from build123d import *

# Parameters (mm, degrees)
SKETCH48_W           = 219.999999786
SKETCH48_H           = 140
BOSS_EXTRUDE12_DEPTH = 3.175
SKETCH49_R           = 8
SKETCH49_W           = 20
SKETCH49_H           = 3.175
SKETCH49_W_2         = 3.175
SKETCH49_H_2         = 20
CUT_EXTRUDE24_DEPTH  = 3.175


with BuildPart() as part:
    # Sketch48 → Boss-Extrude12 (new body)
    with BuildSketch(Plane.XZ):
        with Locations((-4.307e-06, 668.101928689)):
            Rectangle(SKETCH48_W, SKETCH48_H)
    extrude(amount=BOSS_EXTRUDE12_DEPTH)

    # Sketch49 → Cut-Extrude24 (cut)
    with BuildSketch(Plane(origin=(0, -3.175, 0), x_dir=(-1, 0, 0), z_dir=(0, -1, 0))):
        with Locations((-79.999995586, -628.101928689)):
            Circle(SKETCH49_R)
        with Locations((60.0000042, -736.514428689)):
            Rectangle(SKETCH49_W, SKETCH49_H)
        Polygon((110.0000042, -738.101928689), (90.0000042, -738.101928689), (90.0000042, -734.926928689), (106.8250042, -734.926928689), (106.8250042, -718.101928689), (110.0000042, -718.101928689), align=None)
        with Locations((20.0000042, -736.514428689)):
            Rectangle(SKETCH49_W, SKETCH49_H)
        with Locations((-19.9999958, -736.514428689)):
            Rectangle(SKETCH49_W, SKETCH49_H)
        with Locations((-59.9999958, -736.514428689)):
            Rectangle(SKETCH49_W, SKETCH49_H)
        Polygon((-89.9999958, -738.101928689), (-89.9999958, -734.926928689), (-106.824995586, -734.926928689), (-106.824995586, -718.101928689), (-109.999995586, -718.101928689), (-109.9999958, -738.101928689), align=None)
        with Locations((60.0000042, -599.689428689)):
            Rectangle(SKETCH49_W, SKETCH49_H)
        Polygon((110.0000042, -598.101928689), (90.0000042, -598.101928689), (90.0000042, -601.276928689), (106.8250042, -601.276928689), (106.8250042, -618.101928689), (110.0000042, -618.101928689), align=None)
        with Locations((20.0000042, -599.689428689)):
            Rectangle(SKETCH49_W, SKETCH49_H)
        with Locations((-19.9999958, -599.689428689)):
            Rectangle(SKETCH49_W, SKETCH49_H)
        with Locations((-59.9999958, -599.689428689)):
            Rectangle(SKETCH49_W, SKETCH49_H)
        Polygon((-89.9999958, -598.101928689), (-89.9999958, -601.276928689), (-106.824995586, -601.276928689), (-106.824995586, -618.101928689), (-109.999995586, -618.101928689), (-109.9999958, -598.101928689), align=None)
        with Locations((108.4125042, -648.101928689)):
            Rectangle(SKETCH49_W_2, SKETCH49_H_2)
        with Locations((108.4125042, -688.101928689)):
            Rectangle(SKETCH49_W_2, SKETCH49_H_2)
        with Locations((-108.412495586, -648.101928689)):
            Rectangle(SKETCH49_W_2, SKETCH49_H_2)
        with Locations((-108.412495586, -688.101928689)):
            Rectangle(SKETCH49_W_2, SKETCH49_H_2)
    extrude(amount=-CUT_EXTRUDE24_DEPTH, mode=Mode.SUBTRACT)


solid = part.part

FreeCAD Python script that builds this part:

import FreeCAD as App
import Part
import Sketcher
from FreeCAD import Vector


def add_polygon(sketch, points):
    """Adds a closed chain of lines whose ends are joined by coincident constraints."""
    first, n = sketch.GeometryCount, len(points)
    for a, b in zip(points, points[1:] + points[:1]):
        sketch.addGeometry(Part.LineSegment(App.Vector(*a, 0), App.Vector(*b, 0)), False)
    for i in range(n):
        sketch.addConstraint(Sketcher.Constraint("Coincident", first + i, 2, first + (i + 1) % n, 1))

doc = App.newDocument("Part")
body = doc.addObject("PartDesign::Body", "Body")

sketch1 = body.newObject("Sketcher::SketchObject", "Sketch")
sketch1.AttachmentSupport = (doc.getObject("XZ_Plane"), [""])
sketch1.MapMode = "FlatFace"
add_polygon(sketch1, [(-110, 738), (-110, 598), (110, 598), (110, 738)])
sketch1.addConstraint([
    Sketcher.Constraint("Vertical", 0),
    Sketcher.Constraint("Horizontal", 1),
    Sketcher.Constraint("Vertical", 2),
    Sketcher.Constraint("Horizontal", 3),
    Sketcher.Constraint("DistanceX", 1, 1, 1, 2, 220.0),
    Sketcher.Constraint("DistanceY", 0, 2, 0, 1, 140.0),
    Sketcher.Constraint("DistanceY", -1, 1, 0, 2, 598.101929),
    Sketcher.Constraint("DistanceX", 0, 2, -1, 1, 110.000004),
])
pad1 = body.newObject("PartDesign::Pad", "Pad")
pad1.Profile = sketch1
pad1.Length = 3.175

sketch2 = body.newObject("Sketcher::SketchObject", "Sketch001")
sketch2.AttachmentSupport = (doc.getObject("XZ_Plane"), [""])
sketch2.MapMode = "FlatFace"
sketch2.AttachmentOffset = App.Placement(Vector(0, 0, 3.175), App.Rotation())
sketch2.addGeometry(Part.Circle(Vector(80, 628.1, 0), Vector(0, 0, 1), 8), False)
add_polygon(sketch2, [(-50, 734.9), (-50, 738.1), (-70, 738.1), (-70, 734.9)])
add_polygon(sketch2, [(-90, 738.1), (-110, 738.1), (-110, 718.1), (-106.8, 718.1), (-106.8, 734.9), (-90, 734.9)])
add_polygon(sketch2, [(-10, 734.9), (-10, 738.1), (-30, 738.1), (-30, 734.9)])
add_polygon(sketch2, [(30, 734.9), (30, 738.1), (10, 738.1), (10, 734.9)])
add_polygon(sketch2, [(70, 734.9), (70, 738.1), (50, 738.1), (50, 734.9)])
add_polygon(sketch2, [(90, 738.1), (90, 734.9), (106.8, 734.9), (106.8, 718.1), (110, 718.1), (110, 738.1)])
add_polygon(sketch2, [(-50, 598.1), (-50, 601.3), (-70, 601.3), (-70, 598.1)])
add_polygon(sketch2, [(-110, 598.1), (-90, 598.1), (-90, 601.3), (-106.8, 601.3), (-106.8, 618.1), (-110, 618.1)])
add_polygon(sketch2, [(-10, 598.1), (-10, 601.3), (-30, 601.3), (-30, 598.1)])
add_polygon(sketch2, [(30, 598.1), (30, 601.3), (10, 601.3), (10, 598.1)])
add_polygon(sketch2, [(70, 598.1), (70, 601.3), (50, 601.3), (50, 598.1)])
add_polygon(sketch2, [(90, 601.3), (90, 598.1), (110, 598.1), (110, 618.1), (106.8, 618.1), (106.8, 601.3)])
add_polygon(sketch2, [(-106.8, 638.1), (-106.8, 658.1), (-110, 658.1), (-110, 638.1)])
add_polygon(sketch2, [(-106.8, 678.1), (-106.8, 698.1), (-110, 698.1), (-110, 678.1)])
add_polygon(sketch2, [(110, 638.1), (110, 658.1), (106.8, 658.1), (106.8, 638.1)])
add_polygon(sketch2, [(110, 678.1), (110, 698.1), (106.8, 698.1), (106.8, 678.1)])
sketch2.addConstraint([
    Sketcher.Constraint("Vertical", 1),
    Sketcher.Constraint("Horizontal", 2),
    Sketcher.Constraint("Vertical", 3),
    Sketcher.Constraint("Horizontal", 4),
    Sketcher.Constraint("Horizontal", 5),
    Sketcher.Constraint("Vertical", 6),
    Sketcher.Constraint("Horizontal", 7),
    Sketcher.Constraint("Vertical", 8),
    Sketcher.Constraint("Horizontal", 9),
    Sketcher.Constraint("Vertical", 10),
    Sketcher.Constraint("Vertical", 11),
    Sketcher.Constraint("Horizontal", 12),
    Sketcher.Constraint("Vertical", 13),
    Sketcher.Constraint("Horizontal", 14),
    Sketcher.Constraint("Vertical", 15),
    Sketcher.Constraint("Horizontal", 16),
    Sketcher.Constraint("Vertical", 17),
    Sketcher.Constraint("Horizontal", 18),
    Sketcher.Constraint("Vertical", 19),
    Sketcher.Constraint("Horizontal", 20),
    Sketcher.Constraint("Vertical", 21),
    Sketcher.Constraint("Horizontal", 22),
    Sketcher.Constraint("Vertical", 23),
    Sketcher.Constraint("Horizontal", 24),
    Sketcher.Constraint("Vertical", 25),
    Sketcher.Constraint("Horizontal", 26),
    Sketcher.Constraint("Vertical", 27),
    Sketcher.Constraint("Horizontal", 28),
    Sketcher.Constraint("Vertical", 29),
    Sketcher.Constraint("Horizontal", 30),
    Sketcher.Constraint("Vertical", 31),
    Sketcher.Constraint("Horizontal", 32),
    Sketcher.Constraint("Horizontal", 33),
    Sketcher.Constraint("Vertical", 34),
    Sketcher.Constraint("Horizontal", 35),
    Sketcher.Constraint("Vertical", 36),
    Sketcher.Constraint("Horizontal", 37),
    Sketcher.Constraint("Vertical", 38),
    Sketcher.Constraint("Vertical", 39),
    Sketcher.Constraint("Horizontal", 40),
    Sketcher.Constraint("Vertical", 41),
    Sketcher.Constraint("Horizontal", 42),
    Sketcher.Constraint("Vertical", 43),
    Sketcher.Constraint("Horizontal", 44),
    Sketcher.Constraint("Vertical", 45),
    Sketcher.Constraint("Horizontal", 46),
    Sketcher.Constraint("Vertical", 47),
    Sketcher.Constraint("Horizontal", 48),
    Sketcher.Constraint("Vertical", 49),
    Sketcher.Constraint("Horizontal", 50),
    Sketcher.Constraint("Vertical", 51),
    Sketcher.Constraint("Horizontal", 52),
    Sketcher.Constraint("Vertical", 53),
    Sketcher.Constraint("Horizontal", 54),
    Sketcher.Constraint("Vertical", 55),
    Sketcher.Constraint("Horizontal", 56),
    Sketcher.Constraint("Vertical", 57),
    Sketcher.Constraint("Horizontal", 58),
    Sketcher.Constraint("Vertical", 59),
    Sketcher.Constraint("Horizontal", 60),
    Sketcher.Constraint("Vertical", 61),
    Sketcher.Constraint("Horizontal", 62),
    Sketcher.Constraint("Vertical", 63),
    Sketcher.Constraint("Horizontal", 64),
    Sketcher.Constraint("Vertical", 65),
    Sketcher.Constraint("Horizontal", 66),
    Sketcher.Constraint("Vertical", 67),
    Sketcher.Constraint("Horizontal", 68),
    Sketcher.Constraint("Vertical", 69),
    Sketcher.Constraint("Horizontal", 70),
    Sketcher.Constraint("Vertical", 71),
    Sketcher.Constraint("Horizontal", 72),
    Sketcher.Constraint("Symmetric", 12, 2, 15, 2, -2),
    Sketcher.Constraint("Symmetric", 14, 2, 17, 2, -2),
    Sketcher.Constraint("Symmetric", 2, 2, 19, 2, -2),
    Sketcher.Constraint("Symmetric", 4, 2, 21, 2, -2),
    Sketcher.Constraint("Symmetric", 9, 2, 23, 2, -2),
    Sketcher.Constraint("Symmetric", 7, 2, 25, 2, -2),
    Sketcher.Constraint("Symmetric", 5, 2, 27, 2, -2),
    Sketcher.Constraint("Symmetric", 40, 2, 43, 2, -2),
    Sketcher.Constraint("Symmetric", 42, 2, 45, 2, -2),
    Sketcher.Constraint("Symmetric", 30, 2, 47, 2, -2),
    Sketcher.Constraint("Symmetric", 32, 2, 49, 2, -2),
    Sketcher.Constraint("Symmetric", 33, 2, 51, 2, -2),
    Sketcher.Constraint("Symmetric", 37, 2, 53, 2, -2),
    Sketcher.Constraint("Symmetric", 35, 2, 55, 2, -2),
    Sketcher.Constraint("Symmetric", 58, 2, 65, 2, -2),
    Sketcher.Constraint("Symmetric", 60, 2, 67, 2, -2),
    Sketcher.Constraint("Symmetric", 62, 2, 69, 2, -2),
    Sketcher.Constraint("Symmetric", 64, 2, 71, 2, -2),
    Sketcher.Constraint("Horizontal", 2, 2, 5, 2),
    Sketcher.Constraint("Horizontal", 4, 2, 8, 2),
    Sketcher.Constraint("Horizontal", 10, 2, 11, 2),
    Sketcher.Constraint("Horizontal", 9, 2, 13, 2),
    Sketcher.Constraint("Horizontal", 32, 2, 33, 2),
    Sketcher.Constraint("Horizontal", 30, 2, 34, 2),
    Sketcher.Constraint("Horizontal", 35, 2, 39, 2),
    Sketcher.Constraint("Horizontal", 38, 2, 41, 2),
    Sketcher.Constraint("Vertical", 4, 2, 29, 2),
    Sketcher.Constraint("Vertical", 3, 2, 30, 2),
    Sketcher.Constraint("Vertical", 10, 2, 33, 2),
    Sketcher.Constraint("Vertical", 8, 2, 35, 2),
    Sketcher.Constraint("Vertical", 6, 2, 37, 2),
    Sketcher.Constraint("Vertical", 14, 2, 39, 2),
    Sketcher.Constraint("Vertical", 13, 2, 40, 2),
    Sketcher.Constraint("Vertical", 36, 2, 57, 2),
    Sketcher.Constraint("Vertical", 38, 2, 58, 2),
    Sketcher.Constraint("Vertical", 60, 2, 61, 2),
    Sketcher.Constraint("Vertical", 59, 2, 62, 2),
    Sketcher.Constraint("Equal", 4, 5),
    Sketcher.Constraint("Equal", 5, 12),
    Sketcher.Constraint("Equal", 72, 1),
    Sketcher.Constraint("Equal", 52, 6),
    Sketcher.Constraint("Equal", 23, 29),
    Sketcher.Constraint("Equal", 25, 36),
    Sketcher.Constraint("Equal", 53, 57),
    Sketcher.Constraint("Equal", 59, 61),
    Sketcher.Constraint("Diameter", 0, 16.0),
    Sketcher.Constraint("DistanceX", 2, 2, 2, 1, 20.0),
    Sketcher.Constraint("DistanceX", 7, 1, 7, 2, 3.175),
    Sketcher.Constraint("DistanceY", -1, 1, 0, 3, 628.101929),
    Sketcher.Constraint("DistanceY", -1, 1, 1, 2, 738.101929),
    Sketcher.Constraint("DistanceY", -1, 1, 29, 2, 601.276929),
    Sketcher.Constraint("DistanceY", -1, 1, 57, 2, 658.101929),
    Sketcher.Constraint("DistanceY", -1, 1, 61, 2, 698.101929),
    Sketcher.Constraint("DistanceX", -1, 1, 0, 3, 79.999996),
    Sketcher.Constraint("DistanceX", 1, 2, -1, 1, 50.000004),
    Sketcher.Constraint("DistanceX", 5, 2, -1, 1, 110.000004),
    Sketcher.Constraint("DistanceX", 11, 2, -1, 1, 10.000004),
])
pocket1 = body.newObject("PartDesign::Pocket", "Pocket")
pocket1.Profile = sketch2
pocket1.Length = 3.175

doc.recompute()
